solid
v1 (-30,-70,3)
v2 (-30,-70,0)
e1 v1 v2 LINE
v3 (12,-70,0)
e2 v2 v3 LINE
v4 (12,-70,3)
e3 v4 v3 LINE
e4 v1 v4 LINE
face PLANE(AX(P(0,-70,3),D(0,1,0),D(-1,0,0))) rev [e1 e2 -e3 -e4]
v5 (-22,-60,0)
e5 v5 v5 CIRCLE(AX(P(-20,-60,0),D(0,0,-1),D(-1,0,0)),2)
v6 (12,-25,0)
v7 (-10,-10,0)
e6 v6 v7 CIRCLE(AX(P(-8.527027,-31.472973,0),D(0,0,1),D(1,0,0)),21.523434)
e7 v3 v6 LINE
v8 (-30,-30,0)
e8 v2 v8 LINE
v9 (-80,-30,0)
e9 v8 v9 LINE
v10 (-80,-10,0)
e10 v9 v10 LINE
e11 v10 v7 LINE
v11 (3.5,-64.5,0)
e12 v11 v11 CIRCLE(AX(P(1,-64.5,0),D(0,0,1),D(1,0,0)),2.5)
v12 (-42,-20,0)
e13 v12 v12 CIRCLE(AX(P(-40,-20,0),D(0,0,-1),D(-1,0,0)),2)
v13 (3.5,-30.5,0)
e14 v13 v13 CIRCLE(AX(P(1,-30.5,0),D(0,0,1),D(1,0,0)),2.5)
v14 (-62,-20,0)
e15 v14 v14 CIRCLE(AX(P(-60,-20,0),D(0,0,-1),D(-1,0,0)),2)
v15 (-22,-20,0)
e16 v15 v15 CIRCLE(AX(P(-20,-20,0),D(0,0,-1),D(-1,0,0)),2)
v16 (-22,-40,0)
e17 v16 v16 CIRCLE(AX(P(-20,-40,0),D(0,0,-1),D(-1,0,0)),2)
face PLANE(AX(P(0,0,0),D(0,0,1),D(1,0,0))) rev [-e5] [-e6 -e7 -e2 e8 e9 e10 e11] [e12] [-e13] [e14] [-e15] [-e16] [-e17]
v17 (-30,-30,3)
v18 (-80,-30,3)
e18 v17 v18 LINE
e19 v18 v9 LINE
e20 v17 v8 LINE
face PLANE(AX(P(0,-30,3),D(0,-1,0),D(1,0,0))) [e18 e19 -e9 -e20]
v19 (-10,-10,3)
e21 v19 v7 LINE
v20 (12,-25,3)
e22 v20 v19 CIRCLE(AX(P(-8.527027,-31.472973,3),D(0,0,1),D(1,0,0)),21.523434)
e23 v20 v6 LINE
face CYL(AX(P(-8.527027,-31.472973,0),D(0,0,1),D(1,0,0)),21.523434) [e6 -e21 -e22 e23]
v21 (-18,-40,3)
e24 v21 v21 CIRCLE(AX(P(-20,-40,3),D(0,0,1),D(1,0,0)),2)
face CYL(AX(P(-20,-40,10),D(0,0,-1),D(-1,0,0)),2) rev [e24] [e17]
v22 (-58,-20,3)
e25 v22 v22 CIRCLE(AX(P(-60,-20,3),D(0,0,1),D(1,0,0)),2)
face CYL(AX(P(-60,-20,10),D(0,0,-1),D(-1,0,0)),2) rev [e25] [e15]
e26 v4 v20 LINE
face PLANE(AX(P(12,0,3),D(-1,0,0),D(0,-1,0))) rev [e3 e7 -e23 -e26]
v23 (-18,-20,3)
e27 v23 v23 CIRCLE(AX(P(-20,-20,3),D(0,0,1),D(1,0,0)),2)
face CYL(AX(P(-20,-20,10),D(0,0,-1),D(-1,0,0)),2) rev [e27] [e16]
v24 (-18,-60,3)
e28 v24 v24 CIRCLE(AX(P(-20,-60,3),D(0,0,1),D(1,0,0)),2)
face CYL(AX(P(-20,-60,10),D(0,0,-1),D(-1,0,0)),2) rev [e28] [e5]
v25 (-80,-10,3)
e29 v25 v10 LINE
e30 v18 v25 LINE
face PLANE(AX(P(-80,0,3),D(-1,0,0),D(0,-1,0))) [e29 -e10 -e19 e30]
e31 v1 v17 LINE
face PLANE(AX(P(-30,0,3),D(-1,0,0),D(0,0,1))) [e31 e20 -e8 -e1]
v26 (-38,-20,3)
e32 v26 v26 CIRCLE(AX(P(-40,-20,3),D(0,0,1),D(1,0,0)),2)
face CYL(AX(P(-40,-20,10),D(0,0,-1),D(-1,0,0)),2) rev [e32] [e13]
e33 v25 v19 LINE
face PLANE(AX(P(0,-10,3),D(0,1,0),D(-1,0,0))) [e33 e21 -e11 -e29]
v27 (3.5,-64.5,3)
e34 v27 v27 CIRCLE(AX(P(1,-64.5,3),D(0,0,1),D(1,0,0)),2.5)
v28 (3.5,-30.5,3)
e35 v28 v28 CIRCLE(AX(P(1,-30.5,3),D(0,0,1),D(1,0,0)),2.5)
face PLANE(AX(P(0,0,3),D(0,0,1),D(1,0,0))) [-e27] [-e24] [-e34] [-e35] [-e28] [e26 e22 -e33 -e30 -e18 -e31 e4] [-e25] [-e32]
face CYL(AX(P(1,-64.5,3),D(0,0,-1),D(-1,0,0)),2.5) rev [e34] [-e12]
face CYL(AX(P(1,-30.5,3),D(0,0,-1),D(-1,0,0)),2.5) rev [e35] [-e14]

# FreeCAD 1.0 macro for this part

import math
import FreeCAD as App
import Part
import Sketcher

V = App.Vector

doc = App.newDocument("Part")
body = doc.addObject("PartDesign::Body", "Body")

# Sketch on XY plane
sketch1 = doc.addObject("Sketcher::SketchObject", "Sketch")
body.addObject(sketch1)
sketch1.AttachmentSupport = (doc.XY_Plane, [""])
sketch1.MapMode = "FlatFace"
sketch1.addGeometry(Part.LineSegment(V(-30, -70, 0), V(12, -70, 0)), False)
sketch1.addGeometry(Part.LineSegment(V(12, -70, 0), V(12, -25, 0)), False)
sketch1.addGeometry(Part.LineSegment(V(12, -25, 0), V(-10, -25, 0)), False)
sketch1.addGeometry(Part.LineSegment(V(-10, -25, 0), V(-10, -10, 0)), False)
sketch1.addGeometry(Part.LineSegment(V(-10, -10, 0), V(-80, -10, 0)), False)
sketch1.addGeometry(Part.LineSegment(V(-80, -10, 0), V(-80, -30, 0)), False)
sketch1.addGeometry(Part.LineSegment(V(-80, -30, 0), V(-30, -30, 0)), False)
sketch1.addGeometry(Part.LineSegment(V(-30, -30, 0), V(-30, -70, 0)), False)
sketch1.addGeometry(Part.ArcOfCircle(Part.Circle(V(1, -30.5, 0), V(0, 0, 1), 2.5), math.radians(0), math.radians(16.11)), False)
sketch1.addGeometry(Part.ArcOfCircle(Part.Circle(V(1, -30.5, 0), V(0, 0, 1), 2.5), math.radians(-90), math.radians(0)), False)
sketch1.addGeometry(Part.ArcOfCircle(Part.Circle(V(1, -30.5, 0), V(0, 0, 1), 2.5), math.radians(168), math.radians(270)), False)
sketch1.addGeometry(Part.ArcOfCircle(Part.Circle(V(1, -30.5, 0), V(0, 0, 1), 2.5), math.radians(90), math.radians(168)), False)
sketch1.addGeometry(Part.ArcOfCircle(Part.Circle(V(1, -30.5, 0), V(0, 0, 1), 2.5), math.radians(16), math.radians(90)), False)
sketch1.addGeometry(Part.ArcOfCircle(Part.Circle(V(1, -64.5, 0), V(0, 0, 1), 2.5), math.radians(90), math.radians(270)), False)
sketch1.addGeometry(Part.ArcOfCircle(Part.Circle(V(1, -64.5, 0), V(0, 0, 1), 2.5), math.radians(0), math.radians(90)), False)
sketch1.addGeometry(Part.ArcOfCircle(Part.Circle(V(1, -64.5, 0), V(0, 0, 1), 2.5), math.radians(-90), math.radians(0)), False)
sketch1.addConstraint(Sketcher.Constraint("Coincident", 0, 2, 1, 1))
sketch1.addConstraint(Sketcher.Constraint("Coincident", 1, 2, 2, 1))
sketch1.addConstraint(Sketcher.Constraint("Coincident", 2, 2, 3, 1))
sketch1.addConstraint(Sketcher.Constraint("Coincident", 3, 2, 4, 1))
sketch1.addConstraint(Sketcher.Constraint("Coincident", 4, 2, 5, 1))
sketch1.addConstraint(Sketcher.Constraint("Coincident", 5, 2, 6, 1))
sketch1.addConstraint(Sketcher.Constraint("Coincident", 6, 2, 7, 1))
sketch1.addConstraint(Sketcher.Constraint("Coincident", 7, 2, 0, 1))
sketch1.addConstraint(Sketcher.Constraint("Tangent", 8, 1, 9, 2))
sketch1.addConstraint(Sketcher.Constraint("Tangent", 9, 1, 10, 2))
sketch1.addConstraint(Sketcher.Constraint("Tangent", 10, 1, 11, 2))
sketch1.addConstraint(Sketcher.Constraint("Tangent", 11, 1, 12, 2))
sketch1.addConstraint(Sketcher.Constraint("Tangent", 12, 1, 8, 2))
sketch1.addConstraint(Sketcher.Constraint("Tangent", 13, 1, 14, 2))
sketch1.addConstraint(Sketcher.Constraint("Tangent", 14, 1, 15, 2))
sketch1.addConstraint(Sketcher.Constraint("Tangent", 15, 1, 13, 2))
sketch1.addConstraint(Sketcher.Constraint("Horizontal", 0))
sketch1.addConstraint(Sketcher.Constraint("Vertical", 1))
sketch1.addConstraint(Sketcher.Constraint("Horizontal", 2))
sketch1.addConstraint(Sketcher.Constraint("Vertical", 3))
sketch1.addConstraint(Sketcher.Constraint("Horizontal", 4))
sketch1.addConstraint(Sketcher.Constraint("Vertical", 5))
sketch1.addConstraint(Sketcher.Constraint("Horizontal", 6))
sketch1.addConstraint(Sketcher.Constraint("Vertical", 7))
sketch1.addConstraint(Sketcher.Constraint("Coincident", 10, 3, 8, 3))
sketch1.addConstraint(Sketcher.Constraint("Equal", 12, 13))
sketch1.addConstraint(Sketcher.Constraint("Horizontal", 12, 3, 8, 1))
sketch1.addConstraint(Sketcher.Constraint("Horizontal", 15, 3, 14, 1))
sketch1.addConstraint(Sketcher.Constraint("Vertical", 12, 3, 13, 3))
sketch1.addConstraint(Sketcher.Constraint("Vertical", 15, 3, 9, 1))
sketch1.addConstraint(Sketcher.Constraint("Vertical", 9, 1, 11, 1))
sketch1.addConstraint(Sketcher.Constraint("Vertical", 11, 1, 13, 1))
sketch1.addConstraint(Sketcher.Constraint("Vertical", 13, 1, 15, 1))
sketch1.addConstraint(Sketcher.Constraint("Radius", 8, 2.5))
sketch1.addConstraint(Sketcher.Constraint("DistanceX", 0, 1, 0, 2, 42.0))
sketch1.addConstraint(Sketcher.Constraint("DistanceX", 2, 2, 2, 1, 22.0))
sketch1.addConstraint(Sketcher.Constraint("DistanceX", 4, 2, 4, 1, 70.0))
sketch1.addConstraint(Sketcher.Constraint("DistanceY", 1, 1, 1, 2, 45.0))
sketch1.addConstraint(Sketcher.Constraint("DistanceY", 3, 1, 3, 2, 15.0))
sketch1.addConstraint(Sketcher.Constraint("DistanceY", 5, 2, 5, 1, 20.0))
sketch1.addConstraint(Sketcher.Constraint("DistanceX", -1, 1, 8, 3, 1.0))
sketch1.addConstraint(Sketcher.Constraint("DistanceX", -1, 1, 0, 2, 12.0))
sketch1.addConstraint(Sketcher.Constraint("DistanceY", 0, 2, -1, 1, 70.0))
sketch1.addConstraint(Sketcher.Constraint("DistanceY", 9, 1, -1, 1, 33.0))
sketch1.addConstraint(Sketcher.Constraint("DistanceY", 13, 1, -1, 1, 62.0))
sketch1.addConstraint(Sketcher.Constraint("DistanceX", 10, 1, -1, 1, 1.442153))
sketch1.addConstraint(Sketcher.Constraint("DistanceX", -1, 1, 12, 1, 3.401885))
pad1 = doc.addObject("PartDesign::Pad", "Pad")
body.addObject(pad1)
pad1.Profile = sketch1
pad1.Length = 3

# Sketch on XY plane
sketch2 = doc.addObject("Sketcher::SketchObject", "Sketch001")
body.addObject(sketch2)
sketch2.AttachmentSupport = (doc.XY_Plane, [""])
sketch2.MapMode = "FlatFace"
sketch2.addGeometry(Part.Circle(V(-20, -40, 0), V(0, 0, 1), 2), False)
sketch2.addGeometry(Part.Circle(V(-40, -20, 0), V(0, 0, 1), 2), False)
sketch2.addGeometry(Part.Circle(V(-20, -20, 0), V(0, 0, 1), 2), False)
sketch2.addGeometry(Part.Circle(V(-20, -60, 0), V(0, 0, 1), 2), False)
sketch2.addGeometry(Part.Circle(V(-60, -20, 0), V(0, 0, 1), 2), False)
sketch2.addConstraint(Sketcher.Constraint("Equal", 0, 1))
sketch2.addConstraint(Sketcher.Constraint("Equal", 1, 2))
sketch2.addConstraint(Sketcher.Constraint("Equal", 2, 3))
sketch2.addConstraint(Sketcher.Constraint("Equal", 3, 4))
sketch2.addConstraint(Sketcher.Constraint("Horizontal", 1, 3, 2, 3))
sketch2.addConstraint(Sketcher.Constraint("Horizontal", 2, 3, 4, 3))
sketch2.addConstraint(Sketcher.Constraint("Vertical", 0, 3, 2, 3))
sketch2.addConstraint(Sketcher.Constraint("Vertical", 2, 3, 3, 3))
sketch2.addConstraint(Sketcher.Constraint("Diameter", 0, 4.0))
sketch2.addConstraint(Sketcher.Constraint("DistanceX", 0, 3, -1, 1, 20.0))
sketch2.addConstraint(Sketcher.Constraint("DistanceY", 0, 3, -1, 1, 40.0))
sketch2.addConstraint(Sketcher.Constraint("DistanceX", 1, 3, -1, 1, 40.0))
sketch2.addConstraint(Sketcher.Constraint("DistanceY", 1, 3, -1, 1, 20.0))
sketch2.addConstraint(Sketcher.Constraint("DistanceY", 3, 3, -1, 1, 60.0))
sketch2.addConstraint(Sketcher.Constraint("DistanceX", 4, 3, -1, 1, 60.0))
pocket1 = doc.addObject("PartDesign::Pocket", "Pocket")
body.addObject(pocket1)
pocket1.Profile = sketch2
pocket1.Length = 10
pocket1.Reversed = True

# Sketch on XY plane
sketch3 = doc.addObject("Sketcher::SketchObject", "Sketch002")
body.addObject(sketch3)
sketch3.AttachmentSupport = (doc.XY_Plane, [""])
sketch3.MapMode = "FlatFace"
sketch3.AttachmentOffset = App.Placement(V(0, 0, 3), App.Rotation())
sketch3.addGeometry(Part.LineSegment(V(-10, -25, 0), V(12, -25, 0)), False)
sketch3.addGeometry(Part.ArcOfCircle(Part.Circle(V(-9, -31, 0), V(0, 0, 1), 22), math.radians(18), math.radians(94)), False)
sketch3.addGeometry(Part.LineSegment(V(-10, -10, 0), V(-10, -25, 0)), False)
sketch3.addConstraint(Sketcher.Constraint("Coincident", 0, 2, 1, 1))
sketch3.addConstraint(Sketcher.Constraint("Coincident", 1, 2, 2, 1))
sketch3.addConstraint(Sketcher.Constraint("Coincident", 2, 2, 0, 1))
sketch3.addConstraint(Sketcher.Constraint("Horizontal", 0))
sketch3.addConstraint(Sketcher.Constraint("Vertical", 2))
sketch3.addConstraint(Sketcher.Constraint("DistanceX", 0, 1, 0, 2, 22.0))
sketch3.addConstraint(Sketcher.Constraint("DistanceY", 2, 2, 2, 1, 15.0))
sketch3.addConstraint(Sketcher.Constraint("DistanceX", -1, 1, 0, 2, 12.0))
sketch3.addConstraint(Sketcher.Constraint("DistanceY", 0, 2, -1, 1, 25.0))
sketch3.addConstraint(Sketcher.Constraint("Radius", 1, 21.523434))
pad2 = doc.addObject("PartDesign::Pad", "Pad001")
body.addObject(pad2)
pad2.Profile = sketch3
pad2.Length = 3
pad2.Reversed = True

doc.recompute()
